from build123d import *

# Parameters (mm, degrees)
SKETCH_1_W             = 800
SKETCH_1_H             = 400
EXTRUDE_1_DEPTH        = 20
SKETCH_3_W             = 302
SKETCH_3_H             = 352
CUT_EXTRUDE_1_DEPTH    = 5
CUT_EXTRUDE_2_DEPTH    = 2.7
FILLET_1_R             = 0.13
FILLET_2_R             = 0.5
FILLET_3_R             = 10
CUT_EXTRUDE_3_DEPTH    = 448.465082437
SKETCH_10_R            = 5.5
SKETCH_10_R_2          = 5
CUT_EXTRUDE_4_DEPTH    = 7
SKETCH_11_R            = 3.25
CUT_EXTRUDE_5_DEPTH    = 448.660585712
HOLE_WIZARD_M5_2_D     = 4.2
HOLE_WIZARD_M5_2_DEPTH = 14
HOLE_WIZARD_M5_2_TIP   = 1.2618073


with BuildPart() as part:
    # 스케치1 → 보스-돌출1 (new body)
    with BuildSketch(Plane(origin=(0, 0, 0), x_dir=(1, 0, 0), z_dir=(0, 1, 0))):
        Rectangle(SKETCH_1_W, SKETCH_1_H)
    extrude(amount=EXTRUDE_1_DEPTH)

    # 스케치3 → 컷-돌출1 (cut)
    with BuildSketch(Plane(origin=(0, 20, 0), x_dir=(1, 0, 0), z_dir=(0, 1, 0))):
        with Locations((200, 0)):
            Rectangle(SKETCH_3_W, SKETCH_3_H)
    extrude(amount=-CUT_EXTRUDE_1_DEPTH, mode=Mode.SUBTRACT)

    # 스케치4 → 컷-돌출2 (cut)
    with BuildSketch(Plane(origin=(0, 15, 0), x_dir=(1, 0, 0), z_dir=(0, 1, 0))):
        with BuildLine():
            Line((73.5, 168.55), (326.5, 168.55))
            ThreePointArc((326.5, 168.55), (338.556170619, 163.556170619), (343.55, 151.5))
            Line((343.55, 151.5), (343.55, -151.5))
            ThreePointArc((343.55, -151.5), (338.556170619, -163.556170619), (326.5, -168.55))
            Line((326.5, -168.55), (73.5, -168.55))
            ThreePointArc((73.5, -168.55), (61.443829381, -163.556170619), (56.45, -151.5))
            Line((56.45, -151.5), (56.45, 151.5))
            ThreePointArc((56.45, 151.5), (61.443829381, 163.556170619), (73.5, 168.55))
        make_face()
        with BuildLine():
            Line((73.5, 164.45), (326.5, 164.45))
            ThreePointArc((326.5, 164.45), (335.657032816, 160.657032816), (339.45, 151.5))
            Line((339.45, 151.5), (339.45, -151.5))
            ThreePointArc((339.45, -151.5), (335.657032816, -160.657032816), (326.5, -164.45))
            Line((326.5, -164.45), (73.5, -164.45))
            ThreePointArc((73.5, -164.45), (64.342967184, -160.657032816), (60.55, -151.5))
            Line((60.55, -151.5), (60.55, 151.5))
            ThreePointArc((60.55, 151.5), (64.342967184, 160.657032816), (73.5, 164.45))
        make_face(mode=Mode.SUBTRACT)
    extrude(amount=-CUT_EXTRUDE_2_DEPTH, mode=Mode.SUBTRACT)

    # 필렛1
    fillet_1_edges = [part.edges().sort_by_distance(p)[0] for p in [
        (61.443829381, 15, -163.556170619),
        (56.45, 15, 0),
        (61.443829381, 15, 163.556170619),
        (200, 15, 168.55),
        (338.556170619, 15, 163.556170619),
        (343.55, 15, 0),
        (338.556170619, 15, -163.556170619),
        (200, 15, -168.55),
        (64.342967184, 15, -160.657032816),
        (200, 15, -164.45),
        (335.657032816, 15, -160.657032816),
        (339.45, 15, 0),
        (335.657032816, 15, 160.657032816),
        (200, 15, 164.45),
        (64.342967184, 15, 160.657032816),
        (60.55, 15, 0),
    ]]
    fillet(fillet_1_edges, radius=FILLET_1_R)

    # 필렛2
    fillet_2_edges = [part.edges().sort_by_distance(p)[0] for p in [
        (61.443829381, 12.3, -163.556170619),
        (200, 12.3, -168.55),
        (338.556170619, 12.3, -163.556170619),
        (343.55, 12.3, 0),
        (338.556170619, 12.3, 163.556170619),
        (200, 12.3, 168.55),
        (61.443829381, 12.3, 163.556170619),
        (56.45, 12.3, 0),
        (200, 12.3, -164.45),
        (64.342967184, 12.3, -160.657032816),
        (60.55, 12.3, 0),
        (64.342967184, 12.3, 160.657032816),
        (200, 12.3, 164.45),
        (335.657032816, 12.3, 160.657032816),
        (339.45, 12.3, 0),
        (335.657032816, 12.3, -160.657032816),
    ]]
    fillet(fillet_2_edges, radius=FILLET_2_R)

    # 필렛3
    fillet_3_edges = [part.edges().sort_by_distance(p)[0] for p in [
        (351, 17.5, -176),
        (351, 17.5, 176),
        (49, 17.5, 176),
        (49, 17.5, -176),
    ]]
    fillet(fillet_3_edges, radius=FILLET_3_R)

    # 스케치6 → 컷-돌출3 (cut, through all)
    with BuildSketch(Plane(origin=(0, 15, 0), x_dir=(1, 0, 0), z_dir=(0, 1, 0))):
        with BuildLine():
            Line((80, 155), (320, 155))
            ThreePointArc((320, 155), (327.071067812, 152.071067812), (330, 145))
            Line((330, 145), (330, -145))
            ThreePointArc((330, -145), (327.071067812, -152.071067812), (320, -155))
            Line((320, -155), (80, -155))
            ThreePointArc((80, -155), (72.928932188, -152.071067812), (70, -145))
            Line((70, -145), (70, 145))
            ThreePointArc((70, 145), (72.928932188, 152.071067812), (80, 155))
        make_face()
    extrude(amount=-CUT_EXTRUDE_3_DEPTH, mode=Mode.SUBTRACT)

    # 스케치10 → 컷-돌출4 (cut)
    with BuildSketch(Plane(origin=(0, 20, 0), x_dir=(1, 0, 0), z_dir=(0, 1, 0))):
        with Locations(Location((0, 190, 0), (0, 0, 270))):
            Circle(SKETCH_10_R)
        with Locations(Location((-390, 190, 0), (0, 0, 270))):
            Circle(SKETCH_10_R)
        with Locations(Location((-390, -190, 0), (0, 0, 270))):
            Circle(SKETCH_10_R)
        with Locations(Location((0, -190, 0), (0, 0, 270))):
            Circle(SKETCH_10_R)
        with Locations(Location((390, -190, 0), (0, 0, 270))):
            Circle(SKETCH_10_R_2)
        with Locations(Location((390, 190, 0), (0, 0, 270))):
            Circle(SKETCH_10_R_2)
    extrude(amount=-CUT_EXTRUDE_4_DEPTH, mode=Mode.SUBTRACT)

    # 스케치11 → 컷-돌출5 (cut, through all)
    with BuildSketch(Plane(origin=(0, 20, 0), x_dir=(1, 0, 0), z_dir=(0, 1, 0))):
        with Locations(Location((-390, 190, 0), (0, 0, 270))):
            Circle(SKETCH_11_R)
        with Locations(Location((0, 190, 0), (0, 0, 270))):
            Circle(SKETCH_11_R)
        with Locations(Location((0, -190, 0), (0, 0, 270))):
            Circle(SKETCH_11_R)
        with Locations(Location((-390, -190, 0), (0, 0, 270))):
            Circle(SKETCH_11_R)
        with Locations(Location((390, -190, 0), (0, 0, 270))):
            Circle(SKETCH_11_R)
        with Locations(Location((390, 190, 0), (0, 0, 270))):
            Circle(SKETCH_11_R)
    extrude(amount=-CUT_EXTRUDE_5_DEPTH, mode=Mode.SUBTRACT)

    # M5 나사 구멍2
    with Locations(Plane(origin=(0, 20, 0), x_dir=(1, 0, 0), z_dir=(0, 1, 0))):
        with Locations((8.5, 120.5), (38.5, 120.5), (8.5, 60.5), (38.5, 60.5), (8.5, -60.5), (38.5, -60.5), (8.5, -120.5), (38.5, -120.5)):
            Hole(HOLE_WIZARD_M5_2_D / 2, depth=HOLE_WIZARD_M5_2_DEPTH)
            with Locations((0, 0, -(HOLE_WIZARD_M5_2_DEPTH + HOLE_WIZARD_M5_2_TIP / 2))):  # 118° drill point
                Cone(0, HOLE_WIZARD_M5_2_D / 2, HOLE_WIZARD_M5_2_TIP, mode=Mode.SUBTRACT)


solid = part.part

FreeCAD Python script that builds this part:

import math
import FreeCAD as App
import Part
import Sketcher


def edges_at(feature, points):
    """Names of the edges that pass closest to the given points."""
    edges = feature.Shape.Edges
    near = lambda p: min(range(len(edges)), key=lambda i: edges[i].distToShape(Part.Vertex(*p))[0])
    return sorted({f"Edge{near(p) + 1}" for p in points})

doc = App.newDocument("Part")
params = doc.addObject("Spreadsheet::Sheet", "Params")
for row, (alias, value) in enumerate([
    ("sketch1_width", "800 mm"),
    ("sketch1_height", "400 mm"),
    ("pad1_length", "20 mm"),
    ("sketch2_width", "302 mm"),
    ("sketch2_height", "352 mm"),
    ("pocket1_length", "5 mm"),
    ("sketch3_width", "253 mm"),
    ("sketch3_height", "303 mm"),
    ("sketch3_radius", "17.05 mm"),
    ("sketch3_radius2", "12.95 mm"),
    ("pocket2_length", "2.7 mm"),
    ("fillet_radius", "0.13 mm"),
    ("fillet2_radius", "0.5 mm"),
    ("fillet3_radius", "10 mm"),
    ("sketch4_radius", "10 mm"),
    ("sketch4_width", "240 mm"),
    ("sketch4_height", "290 mm"),
    ("sketch5_diameter", "11 mm"),
    ("sketch5_diameter2", "10 mm"),
    ("pocket4_length", "7 mm"),
    ("sketch6_diameter", "6.5 mm"),
    ("sketch7_diameter", "4.2 mm"),
    ("hole_diameter", "4.2 mm"),
    ("hole_depth", "14 mm"),
], start=1):
    params.set(f"A{row}", alias)
    params.set(f"B{row}", "=" + value)
    params.setAlias(f"B{row}", alias)

body = doc.addObject("PartDesign::Body", "Body")

# Sketch on XZ plane
sketch1 = body.newObject("Sketcher::SketchObject", "Sketch")
sketch1.AttachmentSupport = (doc.getObject("XZ_Plane"), [""])
sketch1.MapMode = "FlatFace"
sketch1.addGeometry([
    Part.LineSegment(App.Vector(-400, -200, 0), App.Vector(-400, 200, 0)),
    Part.LineSegment(App.Vector(-400, 200, 0), App.Vector(400, 200, 0)),
    Part.LineSegment(App.Vector(400, 200, 0), App.Vector(400, -200, 0)),
    Part.LineSegment(App.Vector(400, -200, 0), App.Vector(-400, -200, 0)),
], False)
sketch1.addConstraint([
    Sketcher.Constraint("Coincident", 0, 2, 1, 1),
    Sketcher.Constraint("Coincident", 1, 2, 2, 1),
    Sketcher.Constraint("Coincident", 2, 2, 3, 1),
    Sketcher.Constraint("Coincident", 3, 2, 0, 1),
    Sketcher.Constraint("Vertical", 0),
    Sketcher.Constraint("Horizontal", 1),
    Sketcher.Constraint("Vertical", 2),
    Sketcher.Constraint("Horizontal", 3),
    Sketcher.Constraint("Symmetric", 0, 2, 2, 2, -1, 1),
    Sketcher.Constraint("DistanceX", 1, 1, 1, 2, 800.0),
    Sketcher.Constraint("DistanceY", 0, 1, 0, 2, 400.0),
])
sketch1.setExpression("Constraints[9]", "Params.sketch1_width")
sketch1.setExpression("Constraints[10]", "Params.sketch1_height")
pad1 = body.newObject("PartDesign::Pad", "Pad")
pad1.Profile = sketch1
pad1.setExpression("Length", "Params.pad1_length")
pad1.Reversed = True

# Sketch on XZ plane
sketch2 = body.newObject("Sketcher::SketchObject", "Sketch001")
sketch2.AttachmentSupport = (doc.getObject("XZ_Plane"), [""])
sketch2.MapMode = "FlatFace"
sketch2.AttachmentOffset = App.Placement(App.Vector(0, 0, -20), App.Rotation())
sketch2.addGeometry([
    Part.LineSegment(App.Vector(49, -176, 0), App.Vector(49, 176, 0)),
    Part.LineSegment(App.Vector(49, 176, 0), App.Vector(351, 176, 0)),
    Part.LineSegment(App.Vector(351, 176, 0), App.Vector(351, -176, 0)),
    Part.LineSegment(App.Vector(351, -176, 0), App.Vector(49, -176, 0)),
], False)
sketch2.addConstraint([
    Sketcher.Constraint("Coincident", 0, 2, 1, 1),
    Sketcher.Constraint("Coincident", 1, 2, 2, 1),
    Sketcher.Constraint("Coincident", 2, 2, 3, 1),
    Sketcher.Constraint("Coincident", 3, 2, 0, 1),
    Sketcher.Constraint("Vertical", 0),
    Sketcher.Constraint("Horizontal", 1),
    Sketcher.Constraint("Vertical", 2),
    Sketcher.Constraint("Horizontal", 3),
    Sketcher.Constraint("DistanceX", 1, 1, 1, 2, 302.0),
    Sketcher.Constraint("DistanceY", 0, 1, 0, 2, 352.0),
    Sketcher.Constraint("DistanceX", -1, 1, 0, 2, 49.0),
    Sketcher.Constraint("DistanceY", -1, 1, 0, 2, 176.0),
])
sketch2.setExpression("Constraints[8]", "Params.sketch2_width")
sketch2.setExpression("Constraints[9]", "Params.sketch2_height")
pocket1 = body.newObject("PartDesign::Pocket", "Pocket")
pocket1.Profile = sketch2
pocket1.setExpression("Length", "Params.pocket1_length")
pocket1.Reversed = True

# Sketch on XZ plane
sketch3 = body.newObject("Sketcher::SketchObject", "Sketch002")
sketch3.AttachmentSupport = (doc.getObject("XZ_Plane"), [""])
sketch3.MapMode = "FlatFace"
sketch3.AttachmentOffset = App.Placement(App.Vector(0, 0, -15), App.Rotation())
sketch3.addGeometry([
    Part.LineSegment(App.Vector(326.5, -168.55, 0), App.Vector(73.5, -168.55, 0)),  # 0
    Part.ArcOfCircle(Part.Circle(App.Vector(73.5, -151.5, 0), App.Vector(0, 0, 1), 17.05), math.radians(-180), math.radians(-90)),  # 1
    Part.LineSegment(App.Vector(56.45, -151.5, 0), App.Vector(56.45, 151.5, 0)),  # 2
    Part.ArcOfCircle(Part.Circle(App.Vector(73.5, 151.5, 0), App.Vector(0, 0, 1), 17.05), math.radians(90), math.radians(180)),  # 3
    Part.LineSegment(App.Vector(73.5, 168.55, 0), App.Vector(326.5, 168.55, 0)),  # 4
    Part.ArcOfCircle(Part.Circle(App.Vector(326.5, 151.5, 0), App.Vector(0, 0, 1), 17.05), math.radians(0), math.radians(90)),  # 5
    Part.LineSegment(App.Vector(343.55, 151.5, 0), App.Vector(343.55, -151.5, 0)),  # 6
    Part.ArcOfCircle(Part.Circle(App.Vector(326.5, -151.5, 0), App.Vector(0, 0, 1), 17.05), math.radians(-90), math.radians(0)),  # 7
    Part.LineSegment(App.Vector(73.5, -164.45, 0), App.Vector(326.5, -164.45, 0)),  # 8
    Part.ArcOfCircle(Part.Circle(App.Vector(326.5, -151.5, 0), App.Vector(0, 0, 1), 12.95), math.radians(-90), math.radians(0)),  # 9
    Part.LineSegment(App.Vector(339.45, -151.5, 0), App.Vector(339.45, 151.5, 0)),  # 10
    Part.ArcOfCircle(Part.Circle(App.Vector(326.5, 151.5, 0), App.Vector(0, 0, 1), 12.95), math.radians(0), math.radians(90)),  # 11
    Part.LineSegment(App.Vector(326.5, 164.45, 0), App.Vector(73.5, 164.45, 0)),  # 12
    Part.ArcOfCircle(Part.Circle(App.Vector(73.5, 151.5, 0), App.Vector(0, 0, 1), 12.95), math.radians(90), math.radians(180)),  # 13
    Part.LineSegment(App.Vector(60.55, 151.5, 0), App.Vector(60.55, -151.5, 0)),  # 14
    Part.ArcOfCircle(Part.Circle(App.Vector(73.5, -151.5, 0), App.Vector(0, 0, 1), 12.95), math.radians(-180), math.radians(-90)),  # 15
], False)
sketch3.addConstraint([
    Sketcher.Constraint("Tangent", 0, 2, 1, 2),
    Sketcher.Constraint("Tangent", 1, 1, 2, 1),
    Sketcher.Constraint("Tangent", 2, 2, 3, 2),
    Sketcher.Constraint("Tangent", 3, 1, 4, 1),
    Sketcher.Constraint("Tangent", 4, 2, 5, 2),
    Sketcher.Constraint("Tangent", 5, 1, 6, 1),
    Sketcher.Constraint("Tangent", 6, 2, 7, 2),
    Sketcher.Constraint("Tangent", 7, 1, 0, 1),
    Sketcher.Constraint("Tangent", 8, 2, 9, 1),
    Sketcher.Constraint("Tangent", 9, 2, 10, 1),
    Sketcher.Constraint("Tangent", 10, 2, 11, 1),
    Sketcher.Constraint("Tangent", 11, 2, 12, 1),
    Sketcher.Constraint("Tangent", 12, 2, 13, 1),
    Sketcher.Constraint("Tangent", 13, 2, 14, 1),
    Sketcher.Constraint("Tangent", 14, 2, 15, 1),
    Sketcher.Constraint("Tangent", 15, 2, 8, 1),
    Sketcher.Constraint("Horizontal", 0),
    Sketcher.Constraint("Vertical", 2),
    Sketcher.Constraint("Horizontal", 4),
    Sketcher.Constraint("Vertical", 6),
    Sketcher.Constraint("Horizontal", 8),
    Sketcher.Constraint("Vertical", 10),
    Sketcher.Constraint("Horizontal", 12),
    Sketcher.Constraint("Vertical", 14),
    Sketcher.Constraint("Coincident", 9, 3, 7, 3),
    Sketcher.Constraint("Coincident", 11, 3, 5, 3),
    Sketcher.Constraint("Coincident", 13, 3, 3, 3),
    Sketcher.Constraint("Equal", 1, 3),
    Sketcher.Constraint("Equal", 3, 5),
    Sketcher.Constraint("Equal", 5, 7),
    Sketcher.Constraint("Equal", 13, 15),
    Sketcher.Constraint("DistanceX", 0, 2, 0, 1, 253.0),
    Sketcher.Constraint("DistanceY", 2, 1, 2, 2, 303.0),
    Sketcher.Constraint("Radius", 1, 17.05),
    Sketcher.Constraint("Radius", 9, 12.95),
    Sketcher.Constraint("DistanceX", -1, 1, 1, 3, 73.5),
    Sketcher.Constraint("DistanceY", 1, 3, -1, 1, 151.5),
])
sketch3.setExpression("Constraints[31]", "Params.sketch3_width")
sketch3.setExpression("Constraints[32]", "Params.sketch3_height")
sketch3.setExpression("Constraints[33]", "Params.sketch3_radius")
sketch3.setExpression("Constraints[34]", "Params.sketch3_radius2")
pocket2 = body.newObject("PartDesign::Pocket", "Pocket001")
pocket2.Profile = sketch3
pocket2.setExpression("Length", "Params.pocket2_length")
pocket2.Reversed = True
doc.recompute()

fillet = body.newObject("PartDesign::Fillet", "Fillet")
fillet.Base = (pocket2, edges_at(pocket2, [
    (61.444, 15, -163.556),
    (56.45, 15, 0),
    (61.444, 15, 163.556),
    (200, 15, 168.55),
    (338.556, 15, 163.556),
    (343.55, 15, 0),
    (338.556, 15, -163.556),
    (200, 15, -168.55),
    (64.343, 15, -160.657),
    (200, 15, -164.45),
    (335.657, 15, -160.657),
    (339.45, 15, 0),
    (335.657, 15, 160.657),
    (200, 15, 164.45),
    (64.343, 15, 160.657),
    (60.55, 15, 0),
]))
fillet.setExpression("Radius", "Params.fillet_radius")
doc.recompute()

fillet2 = body.newObject("PartDesign::Fillet", "Fillet001")
fillet2.Base = (fillet, edges_at(fillet, [
    (61.444, 12.3, -163.556),
    (200, 12.3, -168.55),
    (338.556, 12.3, -163.556),
    (343.55, 12.3, 0),
    (338.556, 12.3, 163.556),
    (200, 12.3, 168.55),
    (61.444, 12.3, 163.556),
    (56.45, 12.3, 0),
    (200, 12.3, -164.45),
    (64.343, 12.3, -160.657),
    (60.55, 12.3, 0),
    (64.343, 12.3, 160.657),
    (200, 12.3, 164.45),
    (335.657, 12.3, 160.657),
    (339.45, 12.3, 0),
    (335.657, 12.3, -160.657),
]))
fillet2.setExpression("Radius", "Params.fillet2_radius")
doc.recompute()

fillet3 = body.newObject("PartDesign::Fillet", "Fillet002")
fillet3.Base = (fillet2, edges_at(fillet2, [
    (351, 17.5, -176),
    (351, 17.5, 176),
    (49, 17.5, 176),
    (49, 17.5, -176),
]))
fillet3.setExpression("Radius", "Params.fillet3_radius")

# Sketch on XZ plane
sketch4 = body.newObject("Sketcher::SketchObject", "Sketch003")
sketch4.AttachmentSupport = (doc.getObject("XZ_Plane"), [""])
sketch4.MapMode = "FlatFace"
sketch4.AttachmentOffset = App.Placement(App.Vector(0, 0, -15), App.Rotation())
sketch4.addGeometry([
    Part.LineSegment(App.Vector(320, -155, 0), App.Vector(80, -155, 0)),  # 0
    Part.ArcOfCircle(Part.Circle(App.Vector(80, -145, 0), App.Vector(0, 0, 1), 10), math.radians(180), math.radians(270)),  # 1
    Part.LineSegment(App.Vector(70, -145, 0), App.Vector(70, 145, 0)),  # 2
    Part.ArcOfCircle(Part.Circle(App.Vector(80, 145, 0), App.Vector(0, 0, 1), 10), math.radians(90), math.radians(180)),  # 3
    Part.LineSegment(App.Vector(80, 155, 0), App.Vector(320, 155, 0)),  # 4
    Part.ArcOfCircle(Part.Circle(App.Vector(320, 145, 0), App.Vector(0, 0, 1), 10), math.radians(0), math.radians(90)),  # 5
    Part.LineSegment(App.Vector(330, 145, 0), App.Vector(330, -145, 0)),  # 6
    Part.ArcOfCircle(Part.Circle(App.Vector(320, -145, 0), App.Vector(0, 0, 1), 10), math.radians(-90), math.radians(0)),  # 7
], False)
sketch4.addConstraint([
    Sketcher.Constraint("Tangent", 0, 2, 1, 2),
    Sketcher.Constraint("Tangent", 1, 1, 2, 1),
    Sketcher.Constraint("Tangent", 2, 2, 3, 2),
    Sketcher.Constraint("Tangent", 3, 1, 4, 1),
    Sketcher.Constraint("Tangent", 4, 2, 5, 2),
    Sketcher.Constraint("Tangent", 5, 1, 6, 1),
    Sketcher.Constraint("Tangent", 6, 2, 7, 2),
    Sketcher.Constraint("Tangent", 7, 1, 0, 1),
    Sketcher.Constraint("Horizontal", 0),
    Sketcher.Constraint("Vertical", 2),
    Sketcher.Constraint("Horizontal", 4),
    Sketcher.Constraint("Vertical", 6),
    Sketcher.Constraint("Equal", 1, 3),
    Sketcher.Constraint("Equal", 3, 5),
    Sketcher.Constraint("Equal", 5, 7),
    Sketcher.Constraint("Radius", 1, 10.0),
    Sketcher.Constraint("DistanceX", 0, 2, 0, 1, 240.0),
    Sketcher.Constraint("DistanceY", 2, 1, 2, 2, 290.0),
    Sketcher.Constraint("DistanceX", -1, 1, 1, 3, 80.0),
    Sketcher.Constraint("DistanceY", 1, 3, -1, 1, 145.0),
])
sketch4.setExpression("Constraints[15]", "Params.sketch4_radius")
sketch4.setExpression("Constraints[16]", "Params.sketch4_width")
sketch4.setExpression("Constraints[17]", "Params.sketch4_height")
pocket3 = body.newObject("PartDesign::Pocket", "Pocket002")
pocket3.Profile = sketch4
pocket3.Type = "ThroughAll"
pocket3.Reversed = True

# Sketch on XZ plane
sketch5 = body.newObject("Sketcher::SketchObject", "Sketch004")
sketch5.AttachmentSupport = (doc.getObject("XZ_Plane"), [""])
sketch5.MapMode = "FlatFace"
sketch5.AttachmentOffset = App.Placement(App.Vector(0, 0, -20), App.Rotation())
sketch5.addGeometry([
    Part.Circle(App.Vector(0, -190, 0), App.Vector(0, 0, 1), 5.5),  # 0
    Part.Circle(App.Vector(-390, -190, 0), App.Vector(0, 0, 1), 5.5),  # 1
    Part.Circle(App.Vector(-390, 190, 0), App.Vector(0, 0, 1), 5.5),  # 2
    Part.Circle(App.Vector(0, 190, 0), App.Vector(0, 0, 1), 5.5),  # 3
    Part.Circle(App.Vector(390, 190, 0), App.Vector(0, 0, 1), 5),  # 4
    Part.Circle(App.Vector(390, -190, 0), App.Vector(0, 0, 1), 5),  # 5
], False)
sketch5.addConstraint([
    Sketcher.Constraint("Equal", 0, 1),
    Sketcher.Constraint("Equal", 1, 2),
    Sketcher.Constraint("Equal", 2, 3),
    Sketcher.Constraint("Equal", 4, 5),
    Sketcher.Constraint("Symmetric", 0, 3, 3, 3, -1, 1),
    Sketcher.Constraint("Symmetric", 1, 3, 4, 3, -1, 1),
    Sketcher.Constraint("Symmetric", 2, 3, 5, 3, -1, 1),
    Sketcher.Constraint("Symmetric", 2, 3, 4, 3, -2),
    Sketcher.Constraint("PointOnObject", 0, 3, -2),
    Sketcher.Constraint("Horizontal", 0, 3, 1, 3),
    Sketcher.Constraint("Diameter", 0, 11.0),
    Sketcher.Constraint("Diameter", 4, 10.0),
    Sketcher.Constraint("DistanceY", 0, 3, -1, 1, 190.0),
    Sketcher.Constraint("DistanceX", 1, 3, -1, 1, 390.0),
])
sketch5.setExpression("Constraints[10]", "Params.sketch5_diameter")
sketch5.setExpression("Constraints[11]", "Params.sketch5_diameter2")
pocket4 = body.newObject("PartDesign::Pocket", "Pocket003")
pocket4.Profile = sketch5
pocket4.setExpression("Length", "Params.pocket4_length")
pocket4.Reversed = True

# Sketch on XZ plane
sketch6 = body.newObject("Sketcher::SketchObject", "Sketch005")
sketch6.AttachmentSupport = (doc.getObject("XZ_Plane"), [""])
sketch6.MapMode = "FlatFace"
sketch6.AttachmentOffset = App.Placement(App.Vector(0, 0, -20), App.Rotation())
sketch6.addGeometry([
    Part.Circle(App.Vector(-390, -190, 0), App.Vector(0, 0, 1), 3.25),  # 0
    Part.Circle(App.Vector(0, -190, 0), App.Vector(0, 0, 1), 3.25),  # 1
    Part.Circle(App.Vector(0, 190, 0), App.Vector(0, 0, 1), 3.25),  # 2
    Part.Circle(App.Vector(-390, 190, 0), App.Vector(0, 0, 1), 3.25),  # 3
    Part.Circle(App.Vector(390, 190, 0), App.Vector(0, 0, 1), 3.25),  # 4
    Part.Circle(App.Vector(390, -190, 0), App.Vector(0, 0, 1), 3.25),  # 5
], False)
sketch6.addConstraint([
    Sketcher.Constraint("Equal", 0, 1),
    Sketcher.Constraint("Equal", 1, 2),
    Sketcher.Constraint("Equal", 2, 3),
    Sketcher.Constraint("Equal", 3, 4),
    Sketcher.Constraint("Equal", 4, 5),
    Sketcher.Constraint("Symmetric", 1, 3, 2, 3, -1, 1),
    Sketcher.Constraint("Symmetric", 0, 3, 4, 3, -1, 1),
    Sketcher.Constraint("Symmetric", 3, 3, 5, 3, -1, 1),
    Sketcher.Constraint("Symmetric", 3, 3, 4, 3, -2),
    Sketcher.Constraint("PointOnObject", 1, 3, -2),
    Sketcher.Constraint("Horizontal", 0, 3, 1, 3),
    Sketcher.Constraint("Diameter", 0, 6.5),
    Sketcher.Constraint("DistanceX", 0, 3, -1, 1, 390.0),
    Sketcher.Constraint("DistanceY", 0, 3, -1, 1, 190.0),
])
sketch6.setExpression("Constraints[11]", "Params.sketch6_diameter")
pocket5 = body.newObject("PartDesign::Pocket", "Pocket004")
pocket5.Profile = sketch6
pocket5.Type = "ThroughAll"
pocket5.Reversed = True

# Sketch on XZ plane
sketch7 = body.newObject("Sketcher::SketchObject", "Sketch006")
sketch7.AttachmentSupport = (doc.getObject("XZ_Plane"), [""])
sketch7.MapMode = "FlatFace"
sketch7.AttachmentOffset = App.Placement(App.Vector(0, 0, -20), App.Rotation())
sketch7.addGeometry([
    Part.Circle(App.Vector(8.5, -120.5, 0), App.Vector(0, 0, 1), 2.1),  # 0
    Part.Circle(App.Vector(38.5, -120.5, 0), App.Vector(0, 0, 1), 2.1),  # 1
    Part.Circle(App.Vector(8.5, -60.5, 0), App.Vector(0, 0, 1), 2.1),  # 2
    Part.Circle(App.Vector(38.5, -60.5, 0), App.Vector(0, 0, 1), 2.1),  # 3
    Part.Circle(App.Vector(8.5, 60.5, 0), App.Vector(0, 0, 1), 2.1),  # 4
    Part.Circle(App.Vector(38.5, 60.5, 0), App.Vector(0, 0, 1), 2.1),  # 5
    Part.Circle(App.Vector(8.5, 120.5, 0), App.Vector(0, 0, 1), 2.1),  # 6
    Part.Circle(App.Vector(38.5, 120.5, 0), App.Vector(0, 0, 1), 2.1),  # 7
], False)
sketch7.addConstraint([
    Sketcher.Constraint("Equal", 0, 1),
    Sketcher.Constraint("Equal", 1, 2),
    Sketcher.Constraint("Equal", 2, 3),
    Sketcher.Constraint("Equal", 3, 4),
    Sketcher.Constraint("Equal", 4, 5),
    Sketcher.Constraint("Equal", 5, 6),
    Sketcher.Constraint("Equal", 6, 7),
    Sketcher.Constraint("Symmetric", 2, 3, 4, 3, -1),
    Sketcher.Constraint("Symmetric", 3, 3, 5, 3, -1),
    Sketcher.Constraint("Symmetric", 0, 3, 6, 3, -1),
    Sketcher.Constraint("Symmetric", 1, 3, 7, 3, -1),
    Sketcher.Constraint("Horizontal", 0, 3, 1, 3),
    Sketcher.Constraint("Horizontal", 2, 3, 3, 3),
    Sketcher.Constraint("Vertical", 0, 3, 2, 3),
    Sketcher.Constraint("Vertical", 1, 3, 3, 3),
    Sketcher.Constraint("Diameter", 0, 4.2),
    Sketcher.Constraint("DistanceX", 0, 3, 1, 3, 30.0),
    Sketcher.Constraint("DistanceY", 0, 3, 2, 3, 60.0),
    Sketcher.Constraint("DistanceY", 2, 3, 4, 3, 121.0),
    Sketcher.Constraint("DistanceX", -1, 1, 0, 3, 8.5),
])
sketch7.setExpression("Constraints[15]", "Params.sketch7_diameter")
doc.recompute()
hole = body.newObject("PartDesign::Hole", "Hole")
hole.Profile = sketch7
hole.ThreadType = "None"
hole.setExpression("Diameter", "Params.hole_diameter")
hole.DepthType = "Dimension"
hole.setExpression("Depth", "Params.hole_depth")
hole.DrillPoint = "Angled"
hole.DrillPointAngle = 118
hole.Reversed = True

doc.recompute()
